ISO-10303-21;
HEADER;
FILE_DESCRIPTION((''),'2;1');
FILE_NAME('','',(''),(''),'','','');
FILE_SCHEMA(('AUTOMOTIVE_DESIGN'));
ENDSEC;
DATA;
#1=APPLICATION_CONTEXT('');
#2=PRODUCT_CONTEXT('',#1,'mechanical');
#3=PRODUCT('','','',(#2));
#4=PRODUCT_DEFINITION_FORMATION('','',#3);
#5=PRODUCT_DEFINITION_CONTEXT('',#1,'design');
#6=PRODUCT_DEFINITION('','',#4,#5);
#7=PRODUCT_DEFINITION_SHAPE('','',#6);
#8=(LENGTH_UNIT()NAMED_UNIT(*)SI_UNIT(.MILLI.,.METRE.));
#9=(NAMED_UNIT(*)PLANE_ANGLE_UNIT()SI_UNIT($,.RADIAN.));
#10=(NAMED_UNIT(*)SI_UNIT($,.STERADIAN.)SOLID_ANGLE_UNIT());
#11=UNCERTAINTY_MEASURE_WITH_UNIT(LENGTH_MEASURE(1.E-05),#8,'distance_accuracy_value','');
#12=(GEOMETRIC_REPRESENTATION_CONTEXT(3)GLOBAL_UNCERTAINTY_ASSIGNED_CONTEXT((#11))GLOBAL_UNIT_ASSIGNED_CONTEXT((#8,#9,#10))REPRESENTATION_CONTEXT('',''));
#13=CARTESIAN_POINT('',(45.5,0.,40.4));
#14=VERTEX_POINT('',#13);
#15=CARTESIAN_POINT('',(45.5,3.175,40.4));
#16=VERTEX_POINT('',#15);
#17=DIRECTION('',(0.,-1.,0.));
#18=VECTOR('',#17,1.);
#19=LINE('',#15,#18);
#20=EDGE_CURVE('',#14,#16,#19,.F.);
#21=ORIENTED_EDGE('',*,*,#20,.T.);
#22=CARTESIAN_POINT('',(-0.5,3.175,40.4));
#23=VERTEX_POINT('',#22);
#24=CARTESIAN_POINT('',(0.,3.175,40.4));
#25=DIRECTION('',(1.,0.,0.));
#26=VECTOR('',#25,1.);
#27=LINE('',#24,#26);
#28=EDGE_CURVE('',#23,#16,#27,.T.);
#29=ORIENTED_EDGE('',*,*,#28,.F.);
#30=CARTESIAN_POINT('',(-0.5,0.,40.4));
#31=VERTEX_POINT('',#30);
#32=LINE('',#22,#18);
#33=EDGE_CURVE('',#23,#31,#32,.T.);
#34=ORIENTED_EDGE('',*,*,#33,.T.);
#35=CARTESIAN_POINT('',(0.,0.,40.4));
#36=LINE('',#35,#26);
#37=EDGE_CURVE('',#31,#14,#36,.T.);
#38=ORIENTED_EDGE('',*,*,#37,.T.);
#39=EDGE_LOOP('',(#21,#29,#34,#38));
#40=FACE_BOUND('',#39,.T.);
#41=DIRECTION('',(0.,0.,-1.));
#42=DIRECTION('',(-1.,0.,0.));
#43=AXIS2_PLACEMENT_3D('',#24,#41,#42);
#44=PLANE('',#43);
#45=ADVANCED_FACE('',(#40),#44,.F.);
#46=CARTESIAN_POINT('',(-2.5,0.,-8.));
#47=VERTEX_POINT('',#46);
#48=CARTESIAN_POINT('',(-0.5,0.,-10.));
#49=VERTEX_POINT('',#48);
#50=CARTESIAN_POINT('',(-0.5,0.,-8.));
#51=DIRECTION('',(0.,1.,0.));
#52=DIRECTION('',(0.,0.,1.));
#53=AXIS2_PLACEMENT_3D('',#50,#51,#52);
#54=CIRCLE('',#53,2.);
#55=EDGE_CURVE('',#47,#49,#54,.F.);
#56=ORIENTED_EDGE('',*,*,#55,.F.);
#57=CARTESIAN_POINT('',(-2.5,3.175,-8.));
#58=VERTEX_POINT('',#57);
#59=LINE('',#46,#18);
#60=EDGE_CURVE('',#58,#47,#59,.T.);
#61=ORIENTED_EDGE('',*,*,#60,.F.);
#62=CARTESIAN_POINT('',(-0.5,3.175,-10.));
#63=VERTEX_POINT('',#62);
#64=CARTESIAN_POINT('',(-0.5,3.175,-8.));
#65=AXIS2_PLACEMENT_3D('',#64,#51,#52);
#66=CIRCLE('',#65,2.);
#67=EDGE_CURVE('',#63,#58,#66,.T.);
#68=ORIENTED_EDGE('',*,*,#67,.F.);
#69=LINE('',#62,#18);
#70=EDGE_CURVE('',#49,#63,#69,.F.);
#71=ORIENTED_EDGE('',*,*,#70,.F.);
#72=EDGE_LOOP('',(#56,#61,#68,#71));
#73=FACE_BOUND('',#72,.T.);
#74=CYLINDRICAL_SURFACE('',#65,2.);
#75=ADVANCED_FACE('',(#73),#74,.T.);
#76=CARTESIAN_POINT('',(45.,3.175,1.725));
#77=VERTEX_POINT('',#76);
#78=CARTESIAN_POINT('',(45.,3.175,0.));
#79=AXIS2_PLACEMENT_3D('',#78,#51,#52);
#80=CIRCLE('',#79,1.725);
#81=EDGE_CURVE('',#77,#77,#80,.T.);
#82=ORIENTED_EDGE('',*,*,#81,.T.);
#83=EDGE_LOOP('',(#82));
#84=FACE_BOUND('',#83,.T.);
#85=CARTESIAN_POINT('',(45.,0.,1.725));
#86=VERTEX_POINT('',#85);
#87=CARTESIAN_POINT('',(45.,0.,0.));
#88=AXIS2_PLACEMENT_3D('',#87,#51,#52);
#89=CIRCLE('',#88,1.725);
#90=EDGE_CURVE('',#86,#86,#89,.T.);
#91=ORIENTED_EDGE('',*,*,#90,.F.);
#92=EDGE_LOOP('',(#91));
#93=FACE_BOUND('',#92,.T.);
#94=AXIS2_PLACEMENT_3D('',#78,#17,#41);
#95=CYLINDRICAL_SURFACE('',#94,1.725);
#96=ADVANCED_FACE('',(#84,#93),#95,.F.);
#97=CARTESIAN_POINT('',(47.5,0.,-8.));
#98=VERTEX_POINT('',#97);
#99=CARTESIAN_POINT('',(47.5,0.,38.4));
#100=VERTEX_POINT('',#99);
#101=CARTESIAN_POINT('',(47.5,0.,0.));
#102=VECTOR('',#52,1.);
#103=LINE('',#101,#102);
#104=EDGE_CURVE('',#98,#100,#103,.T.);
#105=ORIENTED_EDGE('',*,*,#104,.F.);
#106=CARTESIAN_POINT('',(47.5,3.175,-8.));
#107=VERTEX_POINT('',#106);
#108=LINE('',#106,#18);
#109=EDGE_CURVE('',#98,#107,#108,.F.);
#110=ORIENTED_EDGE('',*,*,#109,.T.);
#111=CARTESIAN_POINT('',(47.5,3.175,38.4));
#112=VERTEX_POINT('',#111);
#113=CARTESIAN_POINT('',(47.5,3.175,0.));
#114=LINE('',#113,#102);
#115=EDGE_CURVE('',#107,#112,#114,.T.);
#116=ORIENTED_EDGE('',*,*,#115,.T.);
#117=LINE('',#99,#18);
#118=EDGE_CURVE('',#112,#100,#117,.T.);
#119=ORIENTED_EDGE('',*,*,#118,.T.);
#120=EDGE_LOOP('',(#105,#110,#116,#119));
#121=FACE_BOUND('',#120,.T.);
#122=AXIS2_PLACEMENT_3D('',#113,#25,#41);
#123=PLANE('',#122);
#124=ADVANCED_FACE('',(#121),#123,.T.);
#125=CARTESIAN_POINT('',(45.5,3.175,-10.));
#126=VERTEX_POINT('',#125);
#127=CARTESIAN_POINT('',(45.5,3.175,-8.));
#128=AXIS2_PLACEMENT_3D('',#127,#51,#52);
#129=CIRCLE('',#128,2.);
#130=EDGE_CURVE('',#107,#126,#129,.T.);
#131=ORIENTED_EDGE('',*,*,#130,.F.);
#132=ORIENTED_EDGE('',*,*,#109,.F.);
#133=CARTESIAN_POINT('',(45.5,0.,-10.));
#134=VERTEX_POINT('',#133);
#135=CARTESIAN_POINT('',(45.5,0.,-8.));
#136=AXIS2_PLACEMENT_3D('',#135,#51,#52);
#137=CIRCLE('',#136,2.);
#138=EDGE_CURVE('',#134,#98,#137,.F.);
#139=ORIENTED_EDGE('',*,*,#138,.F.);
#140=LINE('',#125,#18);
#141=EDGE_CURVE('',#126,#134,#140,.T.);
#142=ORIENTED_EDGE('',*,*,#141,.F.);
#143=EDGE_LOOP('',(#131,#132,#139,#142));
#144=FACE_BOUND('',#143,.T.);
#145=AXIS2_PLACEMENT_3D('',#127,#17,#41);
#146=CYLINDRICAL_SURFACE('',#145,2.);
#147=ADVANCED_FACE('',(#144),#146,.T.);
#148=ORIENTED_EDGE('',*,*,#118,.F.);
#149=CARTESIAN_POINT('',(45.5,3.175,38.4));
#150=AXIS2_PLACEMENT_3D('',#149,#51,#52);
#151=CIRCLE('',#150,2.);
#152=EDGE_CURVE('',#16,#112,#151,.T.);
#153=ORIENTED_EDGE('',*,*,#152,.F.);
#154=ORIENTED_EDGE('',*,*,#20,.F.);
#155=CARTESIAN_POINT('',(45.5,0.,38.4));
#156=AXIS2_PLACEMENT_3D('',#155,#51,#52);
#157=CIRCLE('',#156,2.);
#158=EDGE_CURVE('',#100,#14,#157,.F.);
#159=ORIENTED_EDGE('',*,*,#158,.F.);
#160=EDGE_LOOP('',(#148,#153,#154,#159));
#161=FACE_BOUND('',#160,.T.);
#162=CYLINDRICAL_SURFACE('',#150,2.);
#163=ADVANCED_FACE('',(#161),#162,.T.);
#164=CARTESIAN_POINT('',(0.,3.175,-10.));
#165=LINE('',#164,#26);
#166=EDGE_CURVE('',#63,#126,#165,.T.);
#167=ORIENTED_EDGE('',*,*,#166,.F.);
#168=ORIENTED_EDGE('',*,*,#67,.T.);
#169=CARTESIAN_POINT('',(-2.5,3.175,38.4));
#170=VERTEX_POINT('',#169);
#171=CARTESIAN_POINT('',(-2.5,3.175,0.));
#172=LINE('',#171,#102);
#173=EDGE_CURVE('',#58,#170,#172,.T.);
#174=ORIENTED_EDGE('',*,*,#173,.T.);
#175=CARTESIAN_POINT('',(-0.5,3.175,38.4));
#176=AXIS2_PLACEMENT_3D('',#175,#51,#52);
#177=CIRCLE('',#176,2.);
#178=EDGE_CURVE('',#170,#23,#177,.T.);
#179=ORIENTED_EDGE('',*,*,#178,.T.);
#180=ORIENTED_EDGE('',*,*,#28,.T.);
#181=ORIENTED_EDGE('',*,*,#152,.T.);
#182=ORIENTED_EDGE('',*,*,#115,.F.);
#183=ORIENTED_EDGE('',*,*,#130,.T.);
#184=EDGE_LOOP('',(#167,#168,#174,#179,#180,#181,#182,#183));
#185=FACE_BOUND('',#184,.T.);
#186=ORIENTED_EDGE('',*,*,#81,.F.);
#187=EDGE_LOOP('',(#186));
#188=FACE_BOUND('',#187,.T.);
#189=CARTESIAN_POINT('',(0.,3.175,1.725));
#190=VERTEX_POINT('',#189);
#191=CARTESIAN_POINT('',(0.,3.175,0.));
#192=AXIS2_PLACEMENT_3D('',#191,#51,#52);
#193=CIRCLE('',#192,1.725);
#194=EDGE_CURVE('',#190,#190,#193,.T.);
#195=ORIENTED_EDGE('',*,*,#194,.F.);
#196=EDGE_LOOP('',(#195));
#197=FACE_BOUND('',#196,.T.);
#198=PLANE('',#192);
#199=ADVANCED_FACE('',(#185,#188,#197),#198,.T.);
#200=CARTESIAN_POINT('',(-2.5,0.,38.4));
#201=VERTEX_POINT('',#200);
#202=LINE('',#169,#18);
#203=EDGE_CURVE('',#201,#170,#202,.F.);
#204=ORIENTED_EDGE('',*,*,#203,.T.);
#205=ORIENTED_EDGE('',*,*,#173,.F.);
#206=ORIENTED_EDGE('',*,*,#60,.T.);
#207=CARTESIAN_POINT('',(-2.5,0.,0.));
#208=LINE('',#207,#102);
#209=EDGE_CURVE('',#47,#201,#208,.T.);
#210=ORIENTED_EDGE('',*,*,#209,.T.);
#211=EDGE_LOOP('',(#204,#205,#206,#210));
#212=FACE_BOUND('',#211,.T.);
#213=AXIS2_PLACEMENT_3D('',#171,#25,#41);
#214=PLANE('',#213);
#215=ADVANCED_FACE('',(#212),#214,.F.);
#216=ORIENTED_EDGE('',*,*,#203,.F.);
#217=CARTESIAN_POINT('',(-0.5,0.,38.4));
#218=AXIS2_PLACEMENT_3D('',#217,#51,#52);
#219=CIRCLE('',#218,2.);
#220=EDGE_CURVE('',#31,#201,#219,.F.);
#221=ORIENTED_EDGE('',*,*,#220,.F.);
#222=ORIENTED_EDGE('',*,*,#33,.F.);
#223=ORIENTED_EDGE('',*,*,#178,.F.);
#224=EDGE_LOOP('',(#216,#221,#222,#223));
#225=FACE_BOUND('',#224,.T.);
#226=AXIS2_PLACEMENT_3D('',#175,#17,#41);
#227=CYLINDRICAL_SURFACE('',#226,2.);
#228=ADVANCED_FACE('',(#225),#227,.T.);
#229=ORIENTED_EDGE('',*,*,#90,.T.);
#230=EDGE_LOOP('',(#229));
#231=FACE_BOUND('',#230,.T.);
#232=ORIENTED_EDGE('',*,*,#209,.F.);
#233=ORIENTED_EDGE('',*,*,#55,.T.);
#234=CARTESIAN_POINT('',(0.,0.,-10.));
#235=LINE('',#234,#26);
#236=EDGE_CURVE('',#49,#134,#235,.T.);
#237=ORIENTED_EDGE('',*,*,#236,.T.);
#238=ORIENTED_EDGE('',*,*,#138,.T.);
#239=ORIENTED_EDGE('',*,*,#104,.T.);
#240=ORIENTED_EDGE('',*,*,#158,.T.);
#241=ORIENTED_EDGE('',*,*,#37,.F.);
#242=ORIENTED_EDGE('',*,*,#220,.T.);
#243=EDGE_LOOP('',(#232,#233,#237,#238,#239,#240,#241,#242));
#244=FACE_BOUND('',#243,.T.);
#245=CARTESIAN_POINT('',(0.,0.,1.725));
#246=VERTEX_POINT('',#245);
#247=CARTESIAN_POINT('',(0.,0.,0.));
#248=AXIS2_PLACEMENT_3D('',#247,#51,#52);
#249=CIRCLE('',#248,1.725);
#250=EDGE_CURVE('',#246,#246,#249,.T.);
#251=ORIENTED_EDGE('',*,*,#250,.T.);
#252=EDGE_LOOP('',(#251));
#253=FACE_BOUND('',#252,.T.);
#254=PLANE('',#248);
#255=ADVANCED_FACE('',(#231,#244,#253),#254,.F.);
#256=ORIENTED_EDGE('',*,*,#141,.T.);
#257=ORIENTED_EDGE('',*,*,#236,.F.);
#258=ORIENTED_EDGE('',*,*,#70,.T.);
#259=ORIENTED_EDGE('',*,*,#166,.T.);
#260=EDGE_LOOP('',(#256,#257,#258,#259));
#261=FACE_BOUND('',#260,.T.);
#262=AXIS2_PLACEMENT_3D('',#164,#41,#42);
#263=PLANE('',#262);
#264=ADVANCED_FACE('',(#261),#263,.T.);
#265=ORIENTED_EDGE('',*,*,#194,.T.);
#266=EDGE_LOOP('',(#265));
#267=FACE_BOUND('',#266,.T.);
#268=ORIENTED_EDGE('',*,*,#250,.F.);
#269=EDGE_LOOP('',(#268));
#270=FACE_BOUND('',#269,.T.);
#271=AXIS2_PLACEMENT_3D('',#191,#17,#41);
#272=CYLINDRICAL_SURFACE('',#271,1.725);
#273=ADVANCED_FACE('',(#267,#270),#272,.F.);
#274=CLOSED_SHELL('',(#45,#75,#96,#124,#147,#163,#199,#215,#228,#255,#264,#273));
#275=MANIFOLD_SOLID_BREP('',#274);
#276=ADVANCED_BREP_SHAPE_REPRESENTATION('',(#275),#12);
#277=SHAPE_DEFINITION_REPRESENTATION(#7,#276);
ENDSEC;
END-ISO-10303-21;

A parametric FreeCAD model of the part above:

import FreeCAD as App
import Part
import Sketcher

V = App.Vector


def edges_at(feature, points):
    """Names of the edges that pass closest to the given points."""
    edges = feature.Shape.Edges
    near = lambda p: min(range(len(edges)), key=lambda i: edges[i].distToShape(Part.Vertex(*p))[0])
    return sorted({f"Edge{near(p) + 1}" for p in points})


def add_polygon(sketch, points):
    """Adds a closed chain of lines whose ends are joined by coincident constraints."""
    first, n = sketch.GeometryCount, len(points)
    for a, b in zip(points, points[1:] + points[:1]):
        sketch.addGeometry(Part.LineSegment(App.Vector(*a, 0), App.Vector(*b, 0)), False)
    for i in range(n):
        sketch.addConstraint(Sketcher.Constraint("Coincident", first + i, 2, first + (i + 1) % n, 1))

doc = App.newDocument("Part")
body = doc.addObject("PartDesign::Body", "Body")

sketch1 = body.newObject("Sketcher::SketchObject", "Sketch")
sketch1.AttachmentSupport = (doc.getObject("XZ_Plane"), [""])
sketch1.MapMode = "FlatFace"
add_polygon(sketch1, [(-2.5, -10), (-2.5, 40.4), (47.5, 40.4), (47.5, -10)])
sketch1.addGeometry(Part.Circle(V(0, 0, 0), V(0, 0, 1), 1.7), False)
sketch1.addGeometry(Part.Circle(V(45, 0, 0), V(0, 0, 1), 1.7), False)
sketch1.addConstraint([
    Sketcher.Constraint("Vertical", 0),
    Sketcher.Constraint("Horizontal", 1),
    Sketcher.Constraint("Vertical", 2),
    Sketcher.Constraint("Horizontal", 3),
    Sketcher.Constraint("Coincident", 4, 3, -1, 1),
    Sketcher.Constraint("Equal", 4, 5),
    Sketcher.Constraint("PointOnObject", 5, 3, -1),
    Sketcher.Constraint("Diameter", 4, 3.45),
    Sketcher.Constraint("DistanceX", 1, 1, 1, 2, 50.0),
    Sketcher.Constraint("DistanceY", 0, 1, 0, 2, 50.4),
    Sketcher.Constraint("DistanceX", -1, 1, 5, 3, 45.0),
    Sketcher.Constraint("DistanceY", 2, 2, -1, 1, 10.0),
    Sketcher.Constraint("DistanceX", 0, 2, -1, 1, 2.5),
])
pad1 = body.newObject("PartDesign::Pad", "Pad")
pad1.Profile = sketch1
pad1.Length = 3.175
pad1.Reversed = True
doc.recompute()

fillet = body.newObject("PartDesign::Fillet", "Fillet")
fillet.Base = (pad1, edges_at(pad1, [
    (47.5, 1.587, 40.4),
    (-2.5, 1.587, 40.4),
    (-2.5, 1.587, -10),
    (47.5, 1.587, -10),
]))
fillet.Radius = 2

doc.recompute()
